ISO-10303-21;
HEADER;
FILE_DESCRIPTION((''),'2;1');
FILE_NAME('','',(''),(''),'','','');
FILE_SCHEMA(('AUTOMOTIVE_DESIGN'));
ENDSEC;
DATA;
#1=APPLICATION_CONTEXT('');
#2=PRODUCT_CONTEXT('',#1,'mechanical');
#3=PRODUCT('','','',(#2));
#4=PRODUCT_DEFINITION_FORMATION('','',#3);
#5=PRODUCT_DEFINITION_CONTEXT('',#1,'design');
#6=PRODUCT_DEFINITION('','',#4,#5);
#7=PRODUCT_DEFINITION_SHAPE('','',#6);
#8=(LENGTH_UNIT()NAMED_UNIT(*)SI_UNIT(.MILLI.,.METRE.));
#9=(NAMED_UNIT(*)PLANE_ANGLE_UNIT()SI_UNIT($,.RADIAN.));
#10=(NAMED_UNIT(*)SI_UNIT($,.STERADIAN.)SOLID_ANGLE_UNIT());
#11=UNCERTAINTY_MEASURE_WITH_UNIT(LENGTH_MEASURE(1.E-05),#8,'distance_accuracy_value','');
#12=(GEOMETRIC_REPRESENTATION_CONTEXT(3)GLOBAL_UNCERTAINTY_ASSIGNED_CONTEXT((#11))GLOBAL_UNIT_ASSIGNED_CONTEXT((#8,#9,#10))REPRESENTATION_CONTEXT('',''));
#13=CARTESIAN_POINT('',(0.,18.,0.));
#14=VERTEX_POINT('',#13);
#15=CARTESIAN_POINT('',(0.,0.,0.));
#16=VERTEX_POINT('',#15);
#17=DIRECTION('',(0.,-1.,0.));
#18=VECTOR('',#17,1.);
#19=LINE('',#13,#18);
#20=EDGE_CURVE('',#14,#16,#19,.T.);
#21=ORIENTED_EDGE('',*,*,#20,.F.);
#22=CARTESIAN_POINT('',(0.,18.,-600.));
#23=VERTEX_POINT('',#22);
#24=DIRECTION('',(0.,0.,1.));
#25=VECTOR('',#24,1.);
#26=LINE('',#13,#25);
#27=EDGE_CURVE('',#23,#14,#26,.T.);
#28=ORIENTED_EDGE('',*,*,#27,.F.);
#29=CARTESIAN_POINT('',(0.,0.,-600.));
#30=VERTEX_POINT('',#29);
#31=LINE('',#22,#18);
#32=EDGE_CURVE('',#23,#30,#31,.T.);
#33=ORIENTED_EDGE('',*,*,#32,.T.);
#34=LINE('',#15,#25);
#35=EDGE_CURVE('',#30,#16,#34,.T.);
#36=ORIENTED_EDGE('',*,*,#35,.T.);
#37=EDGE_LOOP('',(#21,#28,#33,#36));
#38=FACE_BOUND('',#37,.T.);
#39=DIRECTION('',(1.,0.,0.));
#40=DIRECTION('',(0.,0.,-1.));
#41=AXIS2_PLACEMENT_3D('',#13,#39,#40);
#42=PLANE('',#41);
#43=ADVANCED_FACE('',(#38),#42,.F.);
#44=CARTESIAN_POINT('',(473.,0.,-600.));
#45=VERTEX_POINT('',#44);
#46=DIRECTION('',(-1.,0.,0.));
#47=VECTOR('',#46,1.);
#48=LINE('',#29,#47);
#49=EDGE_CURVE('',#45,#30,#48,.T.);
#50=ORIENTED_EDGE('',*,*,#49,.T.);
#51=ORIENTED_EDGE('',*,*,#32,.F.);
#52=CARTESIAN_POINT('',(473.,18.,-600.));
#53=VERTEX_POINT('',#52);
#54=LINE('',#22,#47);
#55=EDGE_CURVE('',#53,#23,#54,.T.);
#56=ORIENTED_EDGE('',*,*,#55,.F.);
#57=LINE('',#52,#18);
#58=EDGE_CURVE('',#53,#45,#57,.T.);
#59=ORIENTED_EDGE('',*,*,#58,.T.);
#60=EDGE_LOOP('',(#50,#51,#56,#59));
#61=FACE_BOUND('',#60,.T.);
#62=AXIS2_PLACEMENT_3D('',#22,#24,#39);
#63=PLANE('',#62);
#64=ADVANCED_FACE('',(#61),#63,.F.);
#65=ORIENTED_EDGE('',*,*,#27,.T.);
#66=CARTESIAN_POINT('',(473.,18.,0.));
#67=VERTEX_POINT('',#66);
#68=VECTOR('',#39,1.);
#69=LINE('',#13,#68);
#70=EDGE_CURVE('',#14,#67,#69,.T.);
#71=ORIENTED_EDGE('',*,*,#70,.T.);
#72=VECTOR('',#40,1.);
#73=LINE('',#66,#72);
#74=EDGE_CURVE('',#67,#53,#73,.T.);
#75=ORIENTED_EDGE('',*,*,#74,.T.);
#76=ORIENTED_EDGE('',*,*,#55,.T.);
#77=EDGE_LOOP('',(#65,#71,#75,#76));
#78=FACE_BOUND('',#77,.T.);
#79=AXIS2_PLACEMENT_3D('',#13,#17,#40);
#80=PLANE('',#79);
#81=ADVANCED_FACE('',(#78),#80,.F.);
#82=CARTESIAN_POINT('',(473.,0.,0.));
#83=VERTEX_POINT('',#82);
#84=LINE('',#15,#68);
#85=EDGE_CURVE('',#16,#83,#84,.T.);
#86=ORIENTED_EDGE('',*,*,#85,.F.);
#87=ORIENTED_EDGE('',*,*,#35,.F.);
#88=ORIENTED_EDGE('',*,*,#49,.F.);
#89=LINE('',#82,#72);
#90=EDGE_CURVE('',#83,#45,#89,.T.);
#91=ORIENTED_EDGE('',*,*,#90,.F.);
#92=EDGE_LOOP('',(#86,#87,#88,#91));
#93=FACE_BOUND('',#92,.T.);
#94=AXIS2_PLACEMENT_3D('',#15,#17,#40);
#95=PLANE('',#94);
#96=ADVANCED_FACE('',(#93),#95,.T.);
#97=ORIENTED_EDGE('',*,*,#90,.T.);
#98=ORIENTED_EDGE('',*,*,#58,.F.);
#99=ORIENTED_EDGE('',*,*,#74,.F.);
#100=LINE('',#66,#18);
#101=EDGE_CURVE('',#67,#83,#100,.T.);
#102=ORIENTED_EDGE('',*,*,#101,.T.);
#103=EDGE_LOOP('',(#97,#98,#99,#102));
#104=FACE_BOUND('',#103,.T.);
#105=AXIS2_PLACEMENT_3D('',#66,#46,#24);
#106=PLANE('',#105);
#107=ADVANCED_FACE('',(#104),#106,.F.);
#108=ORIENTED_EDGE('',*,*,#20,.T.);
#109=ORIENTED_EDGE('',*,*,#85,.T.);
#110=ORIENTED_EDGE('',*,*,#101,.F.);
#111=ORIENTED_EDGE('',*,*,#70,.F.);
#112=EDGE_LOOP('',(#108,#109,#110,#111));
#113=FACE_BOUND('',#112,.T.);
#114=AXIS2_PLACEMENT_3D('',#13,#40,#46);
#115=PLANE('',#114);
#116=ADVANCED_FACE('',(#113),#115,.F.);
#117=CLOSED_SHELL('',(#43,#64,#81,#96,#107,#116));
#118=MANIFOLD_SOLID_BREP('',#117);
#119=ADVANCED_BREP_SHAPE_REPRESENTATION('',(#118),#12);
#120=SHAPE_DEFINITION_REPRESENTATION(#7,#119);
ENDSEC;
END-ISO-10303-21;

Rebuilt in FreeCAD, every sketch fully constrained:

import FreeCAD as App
import Part
import Sketcher

V = App.Vector
Q = App.Units.Quantity

doc = App.newDocument("Part")
body = doc.addObject("PartDesign::Body", "Body")

sketch1 = body.newObject("Sketcher::SketchObject", "Sketch")
sketch1.AttachmentSupport = (doc.getObject("XZ_Plane"), [""])
sketch1.MapMode = "FlatFace"
sketch1.addGeometry([
    Part.LineSegment(V(0, -600, 0), V(0, 0, 0)),
    Part.LineSegment(V(0, 0, 0), V(473, 0, 0)),
    Part.LineSegment(V(473, 0, 0), V(473, -600, 0)),
    Part.LineSegment(V(473, -600, 0), V(0, -600, 0)),
], False)
sketch1.addConstraint([
    Sketcher.Constraint("Coincident", 0, 2, 1, 1),
    Sketcher.Constraint("Coincident", 1, 2, 2, 1),
    Sketcher.Constraint("Coincident", 2, 2, 3, 1),
    Sketcher.Constraint("Coincident", 3, 2, 0, 1),
    Sketcher.Constraint("Vertical", 0),
    Sketcher.Constraint("Horizontal", 1),
    Sketcher.Constraint("Vertical", 2),
    Sketcher.Constraint("Horizontal", 3),
    Sketcher.Constraint("Coincident", 0, 2, -1, 1),
    Sketcher.Constraint("DistanceX", 1, 1, 1, 2, Q("473 mm")),
    Sketcher.Constraint("DistanceY", 0, 1, 0, 2, Q("600 mm")),
])
pad1 = body.newObject("PartDesign::Pad", "Pad")
pad1.Profile = sketch1
pad1.Length = 18
pad1.Reversed = True

doc.recompute()
